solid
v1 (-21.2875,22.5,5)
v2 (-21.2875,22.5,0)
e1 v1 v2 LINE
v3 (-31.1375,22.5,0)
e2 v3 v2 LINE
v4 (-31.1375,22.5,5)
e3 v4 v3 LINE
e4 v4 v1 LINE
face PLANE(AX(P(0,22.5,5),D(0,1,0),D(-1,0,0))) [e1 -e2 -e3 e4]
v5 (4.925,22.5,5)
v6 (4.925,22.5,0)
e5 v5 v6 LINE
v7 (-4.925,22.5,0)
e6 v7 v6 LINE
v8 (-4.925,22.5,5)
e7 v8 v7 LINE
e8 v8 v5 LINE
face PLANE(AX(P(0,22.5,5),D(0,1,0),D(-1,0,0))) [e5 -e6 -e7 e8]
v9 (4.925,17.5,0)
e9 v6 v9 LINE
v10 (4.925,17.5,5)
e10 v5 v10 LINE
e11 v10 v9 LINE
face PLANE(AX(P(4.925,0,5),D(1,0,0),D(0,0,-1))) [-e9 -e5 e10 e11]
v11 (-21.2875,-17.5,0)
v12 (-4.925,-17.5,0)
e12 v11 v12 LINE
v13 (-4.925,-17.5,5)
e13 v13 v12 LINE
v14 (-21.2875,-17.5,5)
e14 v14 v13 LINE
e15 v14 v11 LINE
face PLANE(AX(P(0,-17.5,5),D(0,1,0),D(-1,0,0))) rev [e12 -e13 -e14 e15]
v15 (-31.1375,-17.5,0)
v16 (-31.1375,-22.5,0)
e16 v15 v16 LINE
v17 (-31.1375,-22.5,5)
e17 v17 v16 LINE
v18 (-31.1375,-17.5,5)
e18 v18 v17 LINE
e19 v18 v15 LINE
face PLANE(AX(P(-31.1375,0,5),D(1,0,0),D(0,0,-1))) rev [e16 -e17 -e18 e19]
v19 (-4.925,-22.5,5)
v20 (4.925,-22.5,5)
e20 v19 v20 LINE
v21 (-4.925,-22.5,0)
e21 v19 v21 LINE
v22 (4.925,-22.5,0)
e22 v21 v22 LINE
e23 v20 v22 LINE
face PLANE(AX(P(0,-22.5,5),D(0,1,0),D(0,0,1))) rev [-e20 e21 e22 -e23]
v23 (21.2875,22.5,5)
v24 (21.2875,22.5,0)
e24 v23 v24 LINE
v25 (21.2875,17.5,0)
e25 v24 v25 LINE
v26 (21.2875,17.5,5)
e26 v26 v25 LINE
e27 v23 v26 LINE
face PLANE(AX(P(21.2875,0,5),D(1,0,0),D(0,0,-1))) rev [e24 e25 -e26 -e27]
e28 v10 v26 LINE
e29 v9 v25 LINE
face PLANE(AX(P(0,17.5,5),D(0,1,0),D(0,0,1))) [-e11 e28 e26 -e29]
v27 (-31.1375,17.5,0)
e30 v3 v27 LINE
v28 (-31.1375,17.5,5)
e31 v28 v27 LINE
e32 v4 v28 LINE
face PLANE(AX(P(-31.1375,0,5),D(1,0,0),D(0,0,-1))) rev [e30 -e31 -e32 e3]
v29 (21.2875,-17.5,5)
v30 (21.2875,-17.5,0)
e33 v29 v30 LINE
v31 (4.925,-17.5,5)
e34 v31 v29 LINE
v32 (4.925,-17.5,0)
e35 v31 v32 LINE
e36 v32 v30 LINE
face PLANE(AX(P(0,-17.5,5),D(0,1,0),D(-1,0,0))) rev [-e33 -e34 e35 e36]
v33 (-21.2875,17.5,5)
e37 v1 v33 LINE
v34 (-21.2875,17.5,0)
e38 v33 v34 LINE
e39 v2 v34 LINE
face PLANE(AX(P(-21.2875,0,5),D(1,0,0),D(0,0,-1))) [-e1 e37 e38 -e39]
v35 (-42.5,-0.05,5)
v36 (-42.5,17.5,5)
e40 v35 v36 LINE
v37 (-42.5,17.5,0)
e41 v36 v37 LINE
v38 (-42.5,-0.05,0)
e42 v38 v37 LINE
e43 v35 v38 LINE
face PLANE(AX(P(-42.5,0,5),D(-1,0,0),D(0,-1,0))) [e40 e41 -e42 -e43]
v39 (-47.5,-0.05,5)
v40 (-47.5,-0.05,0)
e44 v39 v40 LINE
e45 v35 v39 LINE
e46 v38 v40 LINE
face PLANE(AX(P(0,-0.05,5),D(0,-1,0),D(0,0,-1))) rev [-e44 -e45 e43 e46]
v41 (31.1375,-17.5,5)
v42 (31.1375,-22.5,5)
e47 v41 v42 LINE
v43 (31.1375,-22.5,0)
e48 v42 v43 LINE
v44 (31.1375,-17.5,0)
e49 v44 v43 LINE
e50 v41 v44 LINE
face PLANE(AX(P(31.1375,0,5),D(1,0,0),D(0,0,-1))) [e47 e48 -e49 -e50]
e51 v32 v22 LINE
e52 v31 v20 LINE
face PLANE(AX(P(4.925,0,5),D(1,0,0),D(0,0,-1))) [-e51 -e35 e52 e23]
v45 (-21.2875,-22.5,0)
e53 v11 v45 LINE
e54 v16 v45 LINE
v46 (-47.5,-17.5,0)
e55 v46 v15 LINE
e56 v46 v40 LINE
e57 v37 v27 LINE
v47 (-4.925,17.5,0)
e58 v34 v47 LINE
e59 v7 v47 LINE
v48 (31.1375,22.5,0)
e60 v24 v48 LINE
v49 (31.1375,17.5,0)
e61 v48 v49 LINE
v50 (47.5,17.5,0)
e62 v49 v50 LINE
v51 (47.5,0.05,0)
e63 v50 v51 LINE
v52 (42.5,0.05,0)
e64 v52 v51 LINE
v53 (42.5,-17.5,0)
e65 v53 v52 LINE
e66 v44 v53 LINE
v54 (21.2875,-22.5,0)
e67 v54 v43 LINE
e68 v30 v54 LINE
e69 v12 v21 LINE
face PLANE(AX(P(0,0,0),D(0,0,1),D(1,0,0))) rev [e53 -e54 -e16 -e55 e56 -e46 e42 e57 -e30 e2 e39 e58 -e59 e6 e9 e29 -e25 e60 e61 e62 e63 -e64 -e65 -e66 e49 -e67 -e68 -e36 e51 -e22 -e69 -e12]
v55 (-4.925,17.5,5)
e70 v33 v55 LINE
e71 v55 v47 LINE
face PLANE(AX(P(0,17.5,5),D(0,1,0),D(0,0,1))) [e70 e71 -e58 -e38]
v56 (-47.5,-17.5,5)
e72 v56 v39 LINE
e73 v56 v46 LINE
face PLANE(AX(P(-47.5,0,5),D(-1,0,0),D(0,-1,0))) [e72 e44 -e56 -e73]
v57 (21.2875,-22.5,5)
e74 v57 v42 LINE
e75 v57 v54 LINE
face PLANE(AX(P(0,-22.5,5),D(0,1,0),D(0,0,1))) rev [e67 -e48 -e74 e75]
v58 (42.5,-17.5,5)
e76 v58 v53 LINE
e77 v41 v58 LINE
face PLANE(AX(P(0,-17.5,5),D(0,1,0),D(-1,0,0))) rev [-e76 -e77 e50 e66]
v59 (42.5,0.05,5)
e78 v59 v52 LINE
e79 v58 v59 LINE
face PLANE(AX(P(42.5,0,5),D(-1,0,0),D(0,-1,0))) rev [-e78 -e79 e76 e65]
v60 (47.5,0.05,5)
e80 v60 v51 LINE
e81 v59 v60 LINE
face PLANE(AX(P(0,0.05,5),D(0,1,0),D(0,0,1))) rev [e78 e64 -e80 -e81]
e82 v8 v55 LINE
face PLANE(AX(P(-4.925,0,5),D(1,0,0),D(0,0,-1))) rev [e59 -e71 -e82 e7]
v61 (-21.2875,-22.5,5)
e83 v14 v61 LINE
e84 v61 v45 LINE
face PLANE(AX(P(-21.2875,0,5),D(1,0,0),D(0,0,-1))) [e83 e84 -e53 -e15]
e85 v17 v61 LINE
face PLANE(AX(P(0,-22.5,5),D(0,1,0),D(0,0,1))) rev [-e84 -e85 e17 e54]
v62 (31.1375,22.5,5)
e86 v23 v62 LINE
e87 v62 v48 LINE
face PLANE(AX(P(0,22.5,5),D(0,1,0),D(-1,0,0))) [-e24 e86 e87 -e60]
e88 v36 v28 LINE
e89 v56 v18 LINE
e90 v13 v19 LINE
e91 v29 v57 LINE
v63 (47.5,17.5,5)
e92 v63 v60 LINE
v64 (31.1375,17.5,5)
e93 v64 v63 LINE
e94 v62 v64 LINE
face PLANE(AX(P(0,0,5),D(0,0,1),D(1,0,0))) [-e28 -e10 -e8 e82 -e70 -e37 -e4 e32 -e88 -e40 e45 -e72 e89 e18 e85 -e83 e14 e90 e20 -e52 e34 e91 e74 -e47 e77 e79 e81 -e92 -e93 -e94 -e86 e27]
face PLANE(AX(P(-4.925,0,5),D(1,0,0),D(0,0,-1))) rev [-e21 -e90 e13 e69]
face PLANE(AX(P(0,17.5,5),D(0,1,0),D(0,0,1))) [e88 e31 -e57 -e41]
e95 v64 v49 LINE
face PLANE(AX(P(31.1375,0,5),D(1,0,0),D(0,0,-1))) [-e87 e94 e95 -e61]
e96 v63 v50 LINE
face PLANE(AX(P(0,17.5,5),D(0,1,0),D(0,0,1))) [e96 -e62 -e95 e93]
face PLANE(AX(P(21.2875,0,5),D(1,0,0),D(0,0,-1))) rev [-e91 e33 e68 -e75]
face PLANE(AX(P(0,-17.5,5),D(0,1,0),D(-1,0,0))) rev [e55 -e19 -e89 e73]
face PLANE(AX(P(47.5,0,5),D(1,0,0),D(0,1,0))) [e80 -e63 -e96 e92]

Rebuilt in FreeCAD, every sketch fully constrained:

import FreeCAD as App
import Part
import Sketcher
Q = App.Units.Quantity


def add_polygon(sketch, points):
    """Adds a closed chain of lines whose ends are joined by coincident constraints."""
    first, n = sketch.GeometryCount, len(points)
    for a, b in zip(points, points[1:] + points[:1]):
        sketch.addGeometry(Part.LineSegment(App.Vector(*a, 0), App.Vector(*b, 0)), False)
    for i in range(n):
        sketch.addConstraint(Sketcher.Constraint("Coincident", first + i, 2, first + (i + 1) % n, 1))

doc = App.newDocument("Part")
params = doc.addObject("Spreadsheet::Sheet", "Params")
for row, (alias, value) in enumerate([
    ("sketch1_width", "5 mm"),
    ("sketch1_width2", "9.85 mm"),
    ("sketch1_height", "17.55 mm"),
    ("pad1_length", "5 mm"),
], start=1):
    params.set(f"A{row}", alias)
    params.set(f"B{row}", "=" + value)
    params.setAlias(f"B{row}", alias)

body = doc.addObject("PartDesign::Body", "Body")

# Sketch on XY plane
sketch1 = doc.addObject("Sketcher::SketchObject", "Sketch")
body.addObject(sketch1)
sketch1.AttachmentSupport = (doc.XY_Plane, [""])
sketch1.MapMode = "FlatFace"
add_polygon(sketch1, [(-42, 18), (-42, 0), (-48, 0), (-48, -18), (-31, -18), (-31, -22), (-21, -22), (-21, -18), (-5, -18), (-5, -22), (5, -22), (5, -18), (21, -18), (21, -22), (31, -22), (31, -18), (42, -18), (42, 0), (48, 0), (48, 18), (31, 18), (31, 22), (21, 22), (21, 18), (5, 18), (5, 22), (-5, 22), (-5, 18), (-21, 18), (-21, 22), (-31, 22), (-31, 18)])  # lines 0-31
sketch1.addConstraint(Sketcher.Constraint("Vertical", 0))
sketch1.addConstraint(Sketcher.Constraint("Horizontal", 1))
sketch1.addConstraint(Sketcher.Constraint("Vertical", 2))
sketch1.addConstraint(Sketcher.Constraint("Horizontal", 3))
sketch1.addConstraint(Sketcher.Constraint("Vertical", 4))
sketch1.addConstraint(Sketcher.Constraint("Horizontal", 5))
sketch1.addConstraint(Sketcher.Constraint("Vertical", 6))
sketch1.addConstraint(Sketcher.Constraint("Horizontal", 7))
sketch1.addConstraint(Sketcher.Constraint("Vertical", 8))
sketch1.addConstraint(Sketcher.Constraint("Horizontal", 9))
sketch1.addConstraint(Sketcher.Constraint("Vertical", 10))
sketch1.addConstraint(Sketcher.Constraint("Horizontal", 11))
sketch1.addConstraint(Sketcher.Constraint("Vertical", 12))
sketch1.addConstraint(Sketcher.Constraint("Horizontal", 13))
sketch1.addConstraint(Sketcher.Constraint("Vertical", 14))
sketch1.addConstraint(Sketcher.Constraint("Horizontal", 15))
sketch1.addConstraint(Sketcher.Constraint("Vertical", 16))
sketch1.addConstraint(Sketcher.Constraint("Horizontal", 17))
sketch1.addConstraint(Sketcher.Constraint("Vertical", 18))
sketch1.addConstraint(Sketcher.Constraint("Horizontal", 19))
sketch1.addConstraint(Sketcher.Constraint("Vertical", 20))
sketch1.addConstraint(Sketcher.Constraint("Horizontal", 21))
sketch1.addConstraint(Sketcher.Constraint("Vertical", 22))
sketch1.addConstraint(Sketcher.Constraint("Horizontal", 23))
sketch1.addConstraint(Sketcher.Constraint("Vertical", 24))
sketch1.addConstraint(Sketcher.Constraint("Horizontal", 25))
sketch1.addConstraint(Sketcher.Constraint("Vertical", 26))
sketch1.addConstraint(Sketcher.Constraint("Horizontal", 27))
sketch1.addConstraint(Sketcher.Constraint("Vertical", 28))
sketch1.addConstraint(Sketcher.Constraint("Horizontal", 29))
sketch1.addConstraint(Sketcher.Constraint("Vertical", 30))
sketch1.addConstraint(Sketcher.Constraint("Horizontal", 31))
sketch1.addConstraint(Sketcher.Constraint("Symmetric", 0, 2, 16, 2, -1, 1))
sketch1.addConstraint(Sketcher.Constraint("Symmetric", 2, 2, 18, 2, -1, 1))
sketch1.addConstraint(Sketcher.Constraint("Symmetric", 4, 2, 20, 2, -1, 1))
sketch1.addConstraint(Sketcher.Constraint("Symmetric", 6, 2, 22, 2, -1, 1))
sketch1.addConstraint(Sketcher.Constraint("Symmetric", 8, 2, 24, 2, -1, 1))
sketch1.addConstraint(Sketcher.Constraint("Symmetric", 10, 2, 26, 2, -1, 1))
sketch1.addConstraint(Sketcher.Constraint("Symmetric", 12, 2, 28, 2, -1, 1))
sketch1.addConstraint(Sketcher.Constraint("Symmetric", 14, 2, 30, 2, -1, 1))
sketch1.addConstraint(Sketcher.Constraint("Symmetric", 7, 2, 10, 2, -2))
sketch1.addConstraint(Sketcher.Constraint("Symmetric", 5, 2, 12, 2, -2))
sketch1.addConstraint(Sketcher.Constraint("Symmetric", 3, 2, 14, 2, -2))
sketch1.addConstraint(Sketcher.Constraint("Horizontal", 3, 2, 6, 2))
sketch1.addConstraint(Sketcher.Constraint("Horizontal", 5, 2, 8, 2))
sketch1.addConstraint(Sketcher.Constraint("Equal", 3, 7))
sketch1.addConstraint(Sketcher.Constraint("Equal", 5, 9))
sketch1.addConstraint(Sketcher.Constraint("Equal", 17, 4))
sketch1.addConstraint(Sketcher.Constraint("DistanceX", 1, 2, 1, 1, Q("5 mm")))
sketch1.addConstraint(Sketcher.Constraint("DistanceY", 15, 2, 18, 2, Q("35 mm")))
sketch1.addConstraint(Sketcher.Constraint("DistanceX", 5, 1, 5, 2, Q("9.85 mm")))
sketch1.addConstraint(Sketcher.Constraint("DistanceY", 0, 2, 0, 1, Q("17.55 mm")))
sketch1.addConstraint(Sketcher.Constraint("DistanceX", 0, 2, -1, 1, Q("42.5 mm")))
sketch1.setExpression("Constraints[80]", "Params.sketch1_width")
sketch1.setExpression("Constraints[82]", "Params.sketch1_width2")
sketch1.setExpression("Constraints[83]", "Params.sketch1_height")
pad1 = doc.addObject("PartDesign::Pad", "Pad")
body.addObject(pad1)
pad1.Profile = sketch1
pad1.setExpression("Length", "Params.pad1_length")

doc.recompute()
